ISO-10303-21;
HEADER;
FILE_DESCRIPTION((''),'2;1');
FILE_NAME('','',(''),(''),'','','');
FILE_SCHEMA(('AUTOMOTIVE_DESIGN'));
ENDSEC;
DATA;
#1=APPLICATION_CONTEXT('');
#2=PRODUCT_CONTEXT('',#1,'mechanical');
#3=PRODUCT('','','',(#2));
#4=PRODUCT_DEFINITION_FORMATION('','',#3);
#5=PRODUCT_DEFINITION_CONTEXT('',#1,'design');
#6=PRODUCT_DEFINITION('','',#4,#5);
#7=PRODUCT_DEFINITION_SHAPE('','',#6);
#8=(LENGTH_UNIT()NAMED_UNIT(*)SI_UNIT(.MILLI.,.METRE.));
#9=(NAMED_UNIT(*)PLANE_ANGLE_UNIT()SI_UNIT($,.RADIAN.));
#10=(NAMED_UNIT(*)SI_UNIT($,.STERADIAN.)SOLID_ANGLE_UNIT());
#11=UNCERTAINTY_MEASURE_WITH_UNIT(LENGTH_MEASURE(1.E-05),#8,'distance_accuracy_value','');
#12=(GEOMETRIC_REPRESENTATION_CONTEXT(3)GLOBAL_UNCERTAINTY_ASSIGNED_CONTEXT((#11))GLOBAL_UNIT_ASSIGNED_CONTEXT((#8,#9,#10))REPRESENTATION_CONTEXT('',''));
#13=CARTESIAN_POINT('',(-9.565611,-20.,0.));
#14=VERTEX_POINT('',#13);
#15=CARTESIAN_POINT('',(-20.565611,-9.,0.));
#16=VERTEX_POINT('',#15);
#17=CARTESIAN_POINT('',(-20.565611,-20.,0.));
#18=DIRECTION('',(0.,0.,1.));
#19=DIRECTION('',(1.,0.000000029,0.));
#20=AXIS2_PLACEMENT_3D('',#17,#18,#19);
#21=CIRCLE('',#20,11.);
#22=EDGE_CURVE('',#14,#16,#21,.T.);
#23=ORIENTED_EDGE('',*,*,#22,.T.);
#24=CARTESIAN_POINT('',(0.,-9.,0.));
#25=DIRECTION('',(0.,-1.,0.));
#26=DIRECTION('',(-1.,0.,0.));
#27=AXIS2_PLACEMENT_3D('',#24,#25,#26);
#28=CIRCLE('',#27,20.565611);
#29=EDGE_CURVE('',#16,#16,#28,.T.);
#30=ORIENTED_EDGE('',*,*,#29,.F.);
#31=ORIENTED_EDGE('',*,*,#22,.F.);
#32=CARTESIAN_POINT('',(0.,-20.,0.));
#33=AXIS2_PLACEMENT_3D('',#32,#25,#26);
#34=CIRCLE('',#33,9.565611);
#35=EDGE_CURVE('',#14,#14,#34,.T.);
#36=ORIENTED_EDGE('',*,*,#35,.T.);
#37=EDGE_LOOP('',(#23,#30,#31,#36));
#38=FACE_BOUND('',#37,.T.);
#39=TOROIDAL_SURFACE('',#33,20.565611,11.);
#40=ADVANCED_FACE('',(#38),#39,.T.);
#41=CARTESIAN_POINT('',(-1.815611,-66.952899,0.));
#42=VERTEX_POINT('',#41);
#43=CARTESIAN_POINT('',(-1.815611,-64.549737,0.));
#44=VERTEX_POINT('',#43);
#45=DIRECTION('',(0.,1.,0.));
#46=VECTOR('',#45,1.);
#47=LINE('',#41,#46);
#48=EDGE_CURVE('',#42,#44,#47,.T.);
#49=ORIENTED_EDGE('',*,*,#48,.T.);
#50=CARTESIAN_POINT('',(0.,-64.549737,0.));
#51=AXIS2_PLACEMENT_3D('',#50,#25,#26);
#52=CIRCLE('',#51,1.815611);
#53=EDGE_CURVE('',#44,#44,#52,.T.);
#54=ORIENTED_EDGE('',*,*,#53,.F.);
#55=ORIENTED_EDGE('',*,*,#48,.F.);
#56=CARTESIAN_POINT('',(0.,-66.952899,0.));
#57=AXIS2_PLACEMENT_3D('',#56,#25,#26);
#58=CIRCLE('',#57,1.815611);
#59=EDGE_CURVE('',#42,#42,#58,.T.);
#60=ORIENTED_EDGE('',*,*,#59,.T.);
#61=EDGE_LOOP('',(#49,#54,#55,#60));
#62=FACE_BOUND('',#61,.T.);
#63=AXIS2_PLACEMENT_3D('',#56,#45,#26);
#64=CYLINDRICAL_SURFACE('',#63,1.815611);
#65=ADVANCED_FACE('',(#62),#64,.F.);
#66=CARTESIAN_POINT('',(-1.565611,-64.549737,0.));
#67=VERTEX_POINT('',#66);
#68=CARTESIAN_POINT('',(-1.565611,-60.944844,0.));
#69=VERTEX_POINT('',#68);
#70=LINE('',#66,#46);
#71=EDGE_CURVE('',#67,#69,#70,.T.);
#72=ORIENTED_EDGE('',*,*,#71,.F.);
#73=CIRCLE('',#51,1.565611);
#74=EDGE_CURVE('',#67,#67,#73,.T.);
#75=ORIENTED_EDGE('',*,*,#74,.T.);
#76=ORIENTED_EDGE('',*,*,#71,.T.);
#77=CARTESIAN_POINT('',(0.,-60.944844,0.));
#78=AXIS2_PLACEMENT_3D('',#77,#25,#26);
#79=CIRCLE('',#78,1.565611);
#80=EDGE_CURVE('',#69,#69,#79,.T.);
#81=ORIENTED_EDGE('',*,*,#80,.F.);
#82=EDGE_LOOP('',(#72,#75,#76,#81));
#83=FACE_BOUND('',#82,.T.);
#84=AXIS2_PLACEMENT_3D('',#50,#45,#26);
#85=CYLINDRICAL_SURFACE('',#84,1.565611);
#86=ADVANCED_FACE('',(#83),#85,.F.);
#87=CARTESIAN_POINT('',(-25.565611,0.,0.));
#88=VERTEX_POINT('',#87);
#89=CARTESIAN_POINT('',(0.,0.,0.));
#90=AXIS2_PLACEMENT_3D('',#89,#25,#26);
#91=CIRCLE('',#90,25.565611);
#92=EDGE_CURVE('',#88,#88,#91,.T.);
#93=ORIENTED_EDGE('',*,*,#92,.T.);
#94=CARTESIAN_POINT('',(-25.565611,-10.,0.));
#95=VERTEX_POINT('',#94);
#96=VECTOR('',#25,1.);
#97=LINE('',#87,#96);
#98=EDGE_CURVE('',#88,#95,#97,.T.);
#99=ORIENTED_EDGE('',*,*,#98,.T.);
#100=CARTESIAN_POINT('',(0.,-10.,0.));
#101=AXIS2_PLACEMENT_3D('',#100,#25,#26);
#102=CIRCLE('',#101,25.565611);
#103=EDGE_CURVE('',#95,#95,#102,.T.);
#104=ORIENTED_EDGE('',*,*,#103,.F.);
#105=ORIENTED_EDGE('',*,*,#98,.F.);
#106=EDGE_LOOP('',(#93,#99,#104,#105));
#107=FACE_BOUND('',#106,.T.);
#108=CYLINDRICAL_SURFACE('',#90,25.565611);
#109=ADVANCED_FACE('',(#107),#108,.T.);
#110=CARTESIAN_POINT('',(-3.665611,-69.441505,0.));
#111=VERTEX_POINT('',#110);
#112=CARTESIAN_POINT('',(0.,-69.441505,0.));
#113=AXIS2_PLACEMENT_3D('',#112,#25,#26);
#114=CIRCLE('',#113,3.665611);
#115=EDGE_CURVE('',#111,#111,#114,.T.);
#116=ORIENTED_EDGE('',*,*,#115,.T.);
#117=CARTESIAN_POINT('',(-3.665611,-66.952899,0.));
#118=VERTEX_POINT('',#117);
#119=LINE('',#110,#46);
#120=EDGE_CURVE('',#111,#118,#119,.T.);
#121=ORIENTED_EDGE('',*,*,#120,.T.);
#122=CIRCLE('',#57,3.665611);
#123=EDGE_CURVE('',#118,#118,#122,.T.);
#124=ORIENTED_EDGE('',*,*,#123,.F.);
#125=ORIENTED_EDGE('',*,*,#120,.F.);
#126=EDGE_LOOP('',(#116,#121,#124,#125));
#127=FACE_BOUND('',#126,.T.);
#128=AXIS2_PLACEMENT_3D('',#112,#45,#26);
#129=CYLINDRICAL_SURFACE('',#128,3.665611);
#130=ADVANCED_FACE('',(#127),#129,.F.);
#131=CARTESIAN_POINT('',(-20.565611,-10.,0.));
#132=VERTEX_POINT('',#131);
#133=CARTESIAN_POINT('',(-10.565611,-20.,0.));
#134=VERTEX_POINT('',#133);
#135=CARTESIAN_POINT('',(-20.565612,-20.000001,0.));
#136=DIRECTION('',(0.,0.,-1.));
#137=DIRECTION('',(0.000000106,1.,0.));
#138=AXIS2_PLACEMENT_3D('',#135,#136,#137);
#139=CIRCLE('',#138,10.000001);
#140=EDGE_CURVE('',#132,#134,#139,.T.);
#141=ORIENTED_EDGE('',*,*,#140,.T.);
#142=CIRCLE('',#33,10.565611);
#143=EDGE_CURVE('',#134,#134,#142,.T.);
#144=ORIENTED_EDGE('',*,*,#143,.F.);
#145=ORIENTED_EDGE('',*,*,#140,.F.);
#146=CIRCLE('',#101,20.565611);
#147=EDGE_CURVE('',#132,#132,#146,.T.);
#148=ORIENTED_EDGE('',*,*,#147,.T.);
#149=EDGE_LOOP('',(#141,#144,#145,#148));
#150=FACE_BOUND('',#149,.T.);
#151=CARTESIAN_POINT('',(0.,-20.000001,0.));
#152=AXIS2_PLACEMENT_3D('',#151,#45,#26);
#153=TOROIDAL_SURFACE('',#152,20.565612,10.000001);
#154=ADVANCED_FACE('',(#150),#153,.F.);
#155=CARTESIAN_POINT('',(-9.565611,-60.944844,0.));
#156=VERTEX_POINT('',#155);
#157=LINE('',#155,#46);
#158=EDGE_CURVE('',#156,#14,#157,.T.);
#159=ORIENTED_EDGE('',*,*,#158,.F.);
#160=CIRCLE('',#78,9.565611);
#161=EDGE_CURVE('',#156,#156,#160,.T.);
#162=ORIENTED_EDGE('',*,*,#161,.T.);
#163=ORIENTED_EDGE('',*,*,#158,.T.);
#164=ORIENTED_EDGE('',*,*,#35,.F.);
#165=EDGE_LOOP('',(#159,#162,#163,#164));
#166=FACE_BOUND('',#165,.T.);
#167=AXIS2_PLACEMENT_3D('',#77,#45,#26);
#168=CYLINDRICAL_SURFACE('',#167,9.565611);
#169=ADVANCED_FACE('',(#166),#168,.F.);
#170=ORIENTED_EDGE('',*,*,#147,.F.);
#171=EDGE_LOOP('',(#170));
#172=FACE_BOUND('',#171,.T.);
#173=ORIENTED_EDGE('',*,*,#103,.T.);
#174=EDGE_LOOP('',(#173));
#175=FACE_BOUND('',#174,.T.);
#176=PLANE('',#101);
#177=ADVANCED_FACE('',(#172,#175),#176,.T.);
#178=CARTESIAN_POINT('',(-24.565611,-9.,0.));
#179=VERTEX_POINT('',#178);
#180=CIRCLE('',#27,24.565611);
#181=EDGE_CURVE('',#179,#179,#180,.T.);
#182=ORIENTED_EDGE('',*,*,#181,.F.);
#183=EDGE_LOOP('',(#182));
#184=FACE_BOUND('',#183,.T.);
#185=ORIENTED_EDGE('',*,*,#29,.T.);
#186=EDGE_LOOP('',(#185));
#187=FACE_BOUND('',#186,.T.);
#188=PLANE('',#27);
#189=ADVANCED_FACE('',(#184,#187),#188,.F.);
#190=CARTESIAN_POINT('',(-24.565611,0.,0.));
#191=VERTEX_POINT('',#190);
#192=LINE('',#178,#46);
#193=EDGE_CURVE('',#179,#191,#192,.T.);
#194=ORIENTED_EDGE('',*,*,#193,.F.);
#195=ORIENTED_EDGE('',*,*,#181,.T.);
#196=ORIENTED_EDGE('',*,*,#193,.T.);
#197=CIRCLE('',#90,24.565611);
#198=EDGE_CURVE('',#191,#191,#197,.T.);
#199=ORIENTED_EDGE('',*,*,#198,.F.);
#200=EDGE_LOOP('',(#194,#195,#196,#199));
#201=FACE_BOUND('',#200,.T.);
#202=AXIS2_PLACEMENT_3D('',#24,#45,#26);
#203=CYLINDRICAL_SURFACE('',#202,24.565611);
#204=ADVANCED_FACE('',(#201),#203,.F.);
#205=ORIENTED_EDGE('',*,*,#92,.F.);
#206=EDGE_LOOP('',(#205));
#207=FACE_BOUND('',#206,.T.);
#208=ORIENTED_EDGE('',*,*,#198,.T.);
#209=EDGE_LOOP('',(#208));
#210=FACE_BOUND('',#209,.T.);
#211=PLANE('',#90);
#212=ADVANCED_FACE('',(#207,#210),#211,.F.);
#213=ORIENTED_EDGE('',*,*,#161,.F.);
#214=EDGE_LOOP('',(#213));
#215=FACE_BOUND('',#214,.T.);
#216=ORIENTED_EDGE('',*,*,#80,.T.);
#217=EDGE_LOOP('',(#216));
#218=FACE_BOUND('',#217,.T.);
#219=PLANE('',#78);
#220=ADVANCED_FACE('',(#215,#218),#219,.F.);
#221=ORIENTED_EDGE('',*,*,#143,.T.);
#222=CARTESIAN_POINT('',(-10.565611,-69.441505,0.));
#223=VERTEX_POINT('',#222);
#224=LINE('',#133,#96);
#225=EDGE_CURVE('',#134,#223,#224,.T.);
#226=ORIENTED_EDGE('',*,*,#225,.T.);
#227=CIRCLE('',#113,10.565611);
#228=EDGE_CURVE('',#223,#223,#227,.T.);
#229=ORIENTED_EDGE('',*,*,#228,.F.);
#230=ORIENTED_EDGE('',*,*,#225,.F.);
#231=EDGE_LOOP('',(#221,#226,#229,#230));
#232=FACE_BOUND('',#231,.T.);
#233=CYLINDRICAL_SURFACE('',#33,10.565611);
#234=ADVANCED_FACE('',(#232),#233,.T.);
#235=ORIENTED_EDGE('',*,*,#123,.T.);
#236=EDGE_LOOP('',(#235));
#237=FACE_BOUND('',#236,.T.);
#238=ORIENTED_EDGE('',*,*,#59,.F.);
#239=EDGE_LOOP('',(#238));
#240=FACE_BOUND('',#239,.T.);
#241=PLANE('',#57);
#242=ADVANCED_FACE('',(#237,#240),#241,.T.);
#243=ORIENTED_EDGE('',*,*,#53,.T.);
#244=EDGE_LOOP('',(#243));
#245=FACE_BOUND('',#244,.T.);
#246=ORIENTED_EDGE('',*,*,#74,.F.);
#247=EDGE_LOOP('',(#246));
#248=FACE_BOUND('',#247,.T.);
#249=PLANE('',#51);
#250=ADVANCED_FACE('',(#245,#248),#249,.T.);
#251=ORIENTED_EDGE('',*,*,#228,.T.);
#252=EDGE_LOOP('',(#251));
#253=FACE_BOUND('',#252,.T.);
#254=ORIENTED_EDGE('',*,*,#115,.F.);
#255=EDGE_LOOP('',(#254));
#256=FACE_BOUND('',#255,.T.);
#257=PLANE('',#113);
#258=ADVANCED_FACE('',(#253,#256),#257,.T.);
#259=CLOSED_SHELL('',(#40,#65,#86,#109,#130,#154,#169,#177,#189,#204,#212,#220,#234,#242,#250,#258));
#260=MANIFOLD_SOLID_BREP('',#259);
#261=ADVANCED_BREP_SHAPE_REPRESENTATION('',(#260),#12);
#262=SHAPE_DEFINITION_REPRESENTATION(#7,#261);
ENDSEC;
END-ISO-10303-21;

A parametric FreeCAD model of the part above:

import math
import FreeCAD as App
import Part
import Sketcher

doc = App.newDocument("Part")
body = doc.addObject("PartDesign::Body", "Body")

# Sketch on XY plane
sketch1 = body.newObject("Sketcher::SketchObject", "Sketch")
sketch1.AttachmentSupport = (doc.getObject("XY_Plane"), [""])
sketch1.MapMode = "FlatFace"
sketch1.addGeometry([
    Part.LineSegment(App.Vector(-24.57, -9, 0), App.Vector(-24.57, 0, 0)),  # 0
    Part.LineSegment(App.Vector(-24.57, 0, 0), App.Vector(-25.57, 0, 0)),  # 1
    Part.LineSegment(App.Vector(-25.57, 0, 0), App.Vector(-25.57, -10, 0)),  # 2
    Part.LineSegment(App.Vector(-25.57, -10, 0), App.Vector(-20.57, -10, 0)),  # 3
    Part.ArcOfCircle(Part.Circle(App.Vector(-20.57, -20, 0), App.Vector(0, 0, 1), 10), math.radians(0), math.radians(90)),  # 4
    Part.LineSegment(App.Vector(-10.57, -20, 0), App.Vector(-10.57, -69.44, 0)),  # 5
    Part.LineSegment(App.Vector(-10.57, -69.44, 0), App.Vector(-3.67, -69.44, 0)),  # 6
    Part.LineSegment(App.Vector(-3.67, -69.44, 0), App.Vector(-3.67, -66.95, 0)),  # 7
    Part.LineSegment(App.Vector(-3.67, -66.95, 0), App.Vector(-1.82, -66.95, 0)),  # 8
    Part.LineSegment(App.Vector(-1.82, -66.95, 0), App.Vector(-1.82, -64.55, 0)),  # 9
    Part.LineSegment(App.Vector(-1.82, -64.55, 0), App.Vector(-1.57, -64.55, 0)),  # 10
    Part.LineSegment(App.Vector(-1.57, -64.55, 0), App.Vector(-1.57, -60.94, 0)),  # 11
    Part.LineSegment(App.Vector(-1.57, -60.94, 0), App.Vector(-9.57, -60.94, 0)),  # 12
    Part.LineSegment(App.Vector(-9.57, -60.94, 0), App.Vector(-9.57, -20, 0)),  # 13
    Part.ArcOfCircle(Part.Circle(App.Vector(-20.57, -20, 0), App.Vector(0, 0, 1), 11), math.radians(0), math.radians(90)),  # 14
    Part.LineSegment(App.Vector(-20.57, -9, 0), App.Vector(-24.57, -9, 0)),  # 15
], False)
sketch1.addConstraint([
    Sketcher.Constraint("Coincident", 0, 2, 1, 1),
    Sketcher.Constraint("Coincident", 1, 2, 2, 1),
    Sketcher.Constraint("Coincident", 2, 2, 3, 1),
    Sketcher.Constraint("Tangent", 3, 2, 4, 2),
    Sketcher.Constraint("Tangent", 4, 1, 5, 1),
    Sketcher.Constraint("Coincident", 5, 2, 6, 1),
    Sketcher.Constraint("Coincident", 6, 2, 7, 1),
    Sketcher.Constraint("Coincident", 7, 2, 8, 1),
    Sketcher.Constraint("Coincident", 8, 2, 9, 1),
    Sketcher.Constraint("Coincident", 9, 2, 10, 1),
    Sketcher.Constraint("Coincident", 10, 2, 11, 1),
    Sketcher.Constraint("Coincident", 11, 2, 12, 1),
    Sketcher.Constraint("Coincident", 12, 2, 13, 1),
    Sketcher.Constraint("Tangent", 13, 2, 14, 1),
    Sketcher.Constraint("Tangent", 14, 2, 15, 1),
    Sketcher.Constraint("Coincident", 15, 2, 0, 1),
    Sketcher.Constraint("Vertical", 0),
    Sketcher.Constraint("Horizontal", 1),
    Sketcher.Constraint("Vertical", 2),
    Sketcher.Constraint("Horizontal", 3),
    Sketcher.Constraint("Vertical", 5),
    Sketcher.Constraint("Horizontal", 6),
    Sketcher.Constraint("Vertical", 7),
    Sketcher.Constraint("Horizontal", 8),
    Sketcher.Constraint("Vertical", 9),
    Sketcher.Constraint("Horizontal", 10),
    Sketcher.Constraint("Vertical", 11),
    Sketcher.Constraint("Horizontal", 12),
    Sketcher.Constraint("Vertical", 13),
    Sketcher.Constraint("Horizontal", 15),
    Sketcher.Constraint("Coincident", 14, 3, 4, 3),
    Sketcher.Constraint("PointOnObject", 0, 2, -1),
    Sketcher.Constraint("Radius", 4, 10.000001),
    Sketcher.Constraint("Radius", 14, 11.0),
    Sketcher.Constraint("DistanceX", 1, 2, 1, 1, 1.0),
    Sketcher.Constraint("DistanceX", 3, 1, 3, 2, 5.0),
    Sketcher.Constraint("DistanceX", 12, 2, 12, 1, 8.0),
    Sketcher.Constraint("DistanceY", 0, 1, 0, 2, 9.0),
    Sketcher.Constraint("DistanceX", 6, 1, 6, 2, 6.9),
    Sketcher.Constraint("DistanceX", 8, 1, 8, 2, 1.85),
    Sketcher.Constraint("DistanceY", 7, 2, -1, 1, 66.952899),
    Sketcher.Constraint("DistanceY", 5, 2, 5, 1, 49.441505),
    Sketcher.Constraint("DistanceY", 9, 1, 9, 2, 2.403162),
    Sketcher.Constraint("DistanceY", 11, 1, 11, 2, 3.604893),
    Sketcher.Constraint("DistanceX", 14, 3, -1, 1, 20.565611),
])
revolution = body.newObject("PartDesign::Revolution", "Revolution")
revolution.Profile = sketch1
revolution.ReferenceAxis = (sketch1, ["V_Axis"])
revolution.Angle = 360

doc.recompute()
